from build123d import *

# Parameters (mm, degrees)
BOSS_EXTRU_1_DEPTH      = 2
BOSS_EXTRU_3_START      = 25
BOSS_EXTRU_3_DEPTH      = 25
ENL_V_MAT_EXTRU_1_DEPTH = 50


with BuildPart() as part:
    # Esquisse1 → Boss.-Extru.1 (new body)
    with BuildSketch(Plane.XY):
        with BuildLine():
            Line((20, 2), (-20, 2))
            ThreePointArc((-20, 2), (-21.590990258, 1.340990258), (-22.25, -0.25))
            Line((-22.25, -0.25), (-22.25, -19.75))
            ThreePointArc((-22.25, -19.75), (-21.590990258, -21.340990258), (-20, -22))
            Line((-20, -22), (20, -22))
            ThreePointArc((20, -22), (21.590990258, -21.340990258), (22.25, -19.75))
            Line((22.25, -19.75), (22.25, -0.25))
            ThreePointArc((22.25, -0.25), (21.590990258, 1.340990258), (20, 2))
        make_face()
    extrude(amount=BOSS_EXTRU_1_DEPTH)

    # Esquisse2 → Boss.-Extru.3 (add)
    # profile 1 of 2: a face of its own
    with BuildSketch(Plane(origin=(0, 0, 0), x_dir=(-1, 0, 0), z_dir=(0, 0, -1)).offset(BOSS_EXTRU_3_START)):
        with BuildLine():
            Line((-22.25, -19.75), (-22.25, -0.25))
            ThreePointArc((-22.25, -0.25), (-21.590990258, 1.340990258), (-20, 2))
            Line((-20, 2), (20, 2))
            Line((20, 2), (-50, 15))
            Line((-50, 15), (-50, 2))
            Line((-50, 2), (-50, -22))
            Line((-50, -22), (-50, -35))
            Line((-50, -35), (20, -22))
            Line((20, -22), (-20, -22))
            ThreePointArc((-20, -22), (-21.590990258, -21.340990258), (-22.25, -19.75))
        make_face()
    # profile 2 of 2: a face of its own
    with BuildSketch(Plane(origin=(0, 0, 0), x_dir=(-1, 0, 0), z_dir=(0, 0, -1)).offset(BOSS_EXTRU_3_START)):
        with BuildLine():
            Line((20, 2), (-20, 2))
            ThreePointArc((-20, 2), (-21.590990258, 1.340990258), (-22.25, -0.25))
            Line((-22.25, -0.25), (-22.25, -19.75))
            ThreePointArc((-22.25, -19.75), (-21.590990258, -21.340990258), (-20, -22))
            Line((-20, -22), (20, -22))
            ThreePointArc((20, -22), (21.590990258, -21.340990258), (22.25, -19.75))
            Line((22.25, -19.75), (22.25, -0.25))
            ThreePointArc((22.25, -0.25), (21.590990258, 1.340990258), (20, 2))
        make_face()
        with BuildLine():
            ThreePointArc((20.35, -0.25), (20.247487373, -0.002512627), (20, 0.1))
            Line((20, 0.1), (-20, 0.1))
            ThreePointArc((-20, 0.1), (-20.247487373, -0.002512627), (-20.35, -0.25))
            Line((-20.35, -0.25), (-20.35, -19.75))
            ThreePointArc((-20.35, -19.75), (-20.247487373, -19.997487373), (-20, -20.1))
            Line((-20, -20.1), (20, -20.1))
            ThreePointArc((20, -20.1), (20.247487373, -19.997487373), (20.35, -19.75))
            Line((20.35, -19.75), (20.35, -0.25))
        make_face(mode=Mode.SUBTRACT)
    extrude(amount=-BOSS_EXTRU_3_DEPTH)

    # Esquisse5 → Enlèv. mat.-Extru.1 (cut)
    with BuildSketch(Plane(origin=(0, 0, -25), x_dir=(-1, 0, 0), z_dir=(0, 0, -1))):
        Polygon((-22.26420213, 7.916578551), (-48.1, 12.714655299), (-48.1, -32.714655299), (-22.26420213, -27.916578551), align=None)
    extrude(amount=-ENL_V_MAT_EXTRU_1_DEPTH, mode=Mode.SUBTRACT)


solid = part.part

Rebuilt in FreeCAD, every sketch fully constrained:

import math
import FreeCAD as App
import Part
import Sketcher
Q = App.Units.Quantity


def add_polygon(sketch, points):
    """Adds a closed chain of lines whose ends are joined by coincident constraints."""
    first, n = sketch.GeometryCount, len(points)
    for a, b in zip(points, points[1:] + points[:1]):
        sketch.addGeometry(Part.LineSegment(App.Vector(*a, 0), App.Vector(*b, 0)), False)
    for i in range(n):
        sketch.addConstraint(Sketcher.Constraint("Coincident", first + i, 2, first + (i + 1) % n, 1))

doc = App.newDocument("Part")
params = doc.addObject("Spreadsheet::Sheet", "Params")
for row, (alias, value) in enumerate([
    ("sketch1_width", "40 mm"),
    ("sketch1_radius", "2.25 mm"),
    ("sketch1_height", "19.5 mm"),
    ("pad1_length", "2 mm"),
    ("sketch2_width", "40 mm"),
    ("sketch2_height", "50 mm"),
    ("sketch2_radius", "2.25 mm"),
    ("sketch2_radius2", "0.35 mm"),
    ("sketch2_height2", "19.5 mm"),
    ("pad2_length", "25 mm"),
    ("pocket1_length", "50 mm"),
], start=1):
    params.set(f"A{row}", alias)
    params.set(f"B{row}", "=" + value)
    params.setAlias(f"B{row}", alias)

body = doc.addObject("PartDesign::Body", "Body")

sketch1 = body.newObject("Sketcher::SketchObject", "Sketch")
sketch1.AttachmentSupport = (doc.getObject("XY_Plane"), [""])
sketch1.MapMode = "FlatFace"
sketch1.addGeometry(Part.LineSegment(App.Vector(20, 2, 0), App.Vector(-20, 2, 0)), False)
sketch1.addGeometry(Part.ArcOfCircle(Part.Circle(App.Vector(-20, -0.2, 0), App.Vector(0, 0, 1), 2.2), math.radians(90), math.radians(180)), False)
sketch1.addGeometry(Part.LineSegment(App.Vector(-22.2, -0.2, 0), App.Vector(-22.2, -19.8, 0)), False)
sketch1.addGeometry(Part.ArcOfCircle(Part.Circle(App.Vector(-20, -19.8, 0), App.Vector(0, 0, 1), 2.2), math.radians(180), math.radians(270)), False)
sketch1.addGeometry(Part.LineSegment(App.Vector(-20, -22, 0), App.Vector(20, -22, 0)), False)
sketch1.addGeometry(Part.ArcOfCircle(Part.Circle(App.Vector(20, -19.8, 0), App.Vector(0, 0, 1), 2.2), math.radians(-90), math.radians(0)), False)
sketch1.addGeometry(Part.LineSegment(App.Vector(22.2, -19.8, 0), App.Vector(22.2, -0.2, 0)), False)
sketch1.addGeometry(Part.ArcOfCircle(Part.Circle(App.Vector(20, -0.2, 0), App.Vector(0, 0, 1), 2.2), math.radians(0), math.radians(90)), False)
sketch1.addConstraint(Sketcher.Constraint("Tangent", 0, 2, 1, 1))
sketch1.addConstraint(Sketcher.Constraint("Tangent", 1, 2, 2, 1))
sketch1.addConstraint(Sketcher.Constraint("Tangent", 2, 2, 3, 1))
sketch1.addConstraint(Sketcher.Constraint("Tangent", 3, 2, 4, 1))
sketch1.addConstraint(Sketcher.Constraint("Tangent", 4, 2, 5, 1))
sketch1.addConstraint(Sketcher.Constraint("Tangent", 5, 2, 6, 1))
sketch1.addConstraint(Sketcher.Constraint("Tangent", 6, 2, 7, 1))
sketch1.addConstraint(Sketcher.Constraint("Tangent", 7, 2, 0, 1))
sketch1.addConstraint(Sketcher.Constraint("Horizontal", 0))
sketch1.addConstraint(Sketcher.Constraint("Vertical", 2))
sketch1.addConstraint(Sketcher.Constraint("Horizontal", 4))
sketch1.addConstraint(Sketcher.Constraint("Vertical", 6))
sketch1.addConstraint(Sketcher.Constraint("Equal", 1, 3))
sketch1.addConstraint(Sketcher.Constraint("Equal", 3, 5))
sketch1.addConstraint(Sketcher.Constraint("Equal", 5, 7))
sketch1.addConstraint(Sketcher.Constraint("DistanceX", 0, 2, 0, 1, Q("40 mm")))
sketch1.addConstraint(Sketcher.Constraint("Radius", 1, Q("2.25 mm")))
sketch1.addConstraint(Sketcher.Constraint("DistanceY", 2, 2, 2, 1, Q("19.5 mm")))
sketch1.addConstraint(Sketcher.Constraint("DistanceX", 1, 3, -1, 1, Q("20 mm")))
sketch1.addConstraint(Sketcher.Constraint("DistanceY", -1, 1, 0, 2, Q("2 mm")))
sketch1.setExpression("Constraints[15]", "Params.sketch1_width")
sketch1.setExpression("Constraints[16]", "Params.sketch1_radius")
sketch1.setExpression("Constraints[17]", "Params.sketch1_height")
pad1 = body.newObject("PartDesign::Pad", "Pad")
pad1.Profile = sketch1
pad1.setExpression("Length", "Params.pad1_length")

sketch2 = body.newObject("Sketcher::SketchObject", "Sketch001")
sketch2.AttachmentSupport = (doc.getObject("XY_Plane"), [""])
sketch2.MapMode = "FlatFace"
sketch2.AttachmentOffset = App.Placement(App.Vector(0, 0, -25), App.Rotation())
sketch2.addGeometry(Part.LineSegment(App.Vector(-20, 2, 0), App.Vector(50, 15, 0)), False)
sketch2.addGeometry(Part.LineSegment(App.Vector(50, 15, 0), App.Vector(50, -35, 0)), False)
sketch2.addGeometry(Part.LineSegment(App.Vector(50, -35, 0), App.Vector(-20, -22, 0)), False)
sketch2.addGeometry(Part.ArcOfCircle(Part.Circle(App.Vector(-20, -19.75, 0), App.Vector(0, 0, 1), 2.25), math.radians(180), math.radians(270)), False)
sketch2.addGeometry(Part.LineSegment(App.Vector(-22.25, -19.75, 0), App.Vector(-22.25, -0.25, 0)), False)
sketch2.addGeometry(Part.ArcOfCircle(Part.Circle(App.Vector(-20, -0.25, 0), App.Vector(0, 0, 1), 2.25), math.radians(90), math.radians(180)), False)
sketch2.addGeometry(Part.LineSegment(App.Vector(-20, -20.1, 0), App.Vector(20, -20.1, 0)), False)
sketch2.addGeometry(Part.ArcOfCircle(Part.Circle(App.Vector(20, -19.75, 0), App.Vector(0, 0, 1), 0.35), math.radians(-90), math.radians(0)), False)
sketch2.addGeometry(Part.LineSegment(App.Vector(20.35, -19.75, 0), App.Vector(20.35, -0.25, 0)), False)
sketch2.addGeometry(Part.ArcOfCircle(Part.Circle(App.Vector(20, -0.25, 0), App.Vector(0, 0, 1), 0.35), math.radians(0), math.radians(90)), False)
sketch2.addGeometry(Part.LineSegment(App.Vector(20, 0.1, 0), App.Vector(-20, 0.1, 0)), False)
sketch2.addGeometry(Part.ArcOfCircle(Part.Circle(App.Vector(-20, -0.25, 0), App.Vector(0, 0, 1), 0.35), math.radians(90), math.radians(180)), False)
sketch2.addGeometry(Part.LineSegment(App.Vector(-20.35, -0.25, 0), App.Vector(-20.35, -19.75, 0)), False)
sketch2.addGeometry(Part.ArcOfCircle(Part.Circle(App.Vector(-20, -19.75, 0), App.Vector(0, 0, 1), 0.35), math.radians(-180), math.radians(-90)), False)
sketch2.addConstraint(Sketcher.Constraint("Coincident", 0, 2, 1, 1))
sketch2.addConstraint(Sketcher.Constraint("Coincident", 1, 2, 2, 1))
sketch2.addConstraint(Sketcher.Constraint("Coincident", 2, 2, 3, 2))
sketch2.addConstraint(Sketcher.Constraint("Tangent", 3, 1, 4, 1))
sketch2.addConstraint(Sketcher.Constraint("Tangent", 4, 2, 5, 2))
sketch2.addConstraint(Sketcher.Constraint("Coincident", 5, 1, 0, 1))
sketch2.addConstraint(Sketcher.Constraint("Tangent", 6, 2, 7, 1))
sketch2.addConstraint(Sketcher.Constraint("Tangent", 7, 2, 8, 1))
sketch2.addConstraint(Sketcher.Constraint("Tangent", 8, 2, 9, 1))
sketch2.addConstraint(Sketcher.Constraint("Tangent", 9, 2, 10, 1))
sketch2.addConstraint(Sketcher.Constraint("Tangent", 10, 2, 11, 1))
sketch2.addConstraint(Sketcher.Constraint("Tangent", 11, 2, 12, 1))
sketch2.addConstraint(Sketcher.Constraint("Tangent", 12, 2, 13, 1))
sketch2.addConstraint(Sketcher.Constraint("Tangent", 13, 2, 6, 1))
sketch2.addConstraint(Sketcher.Constraint("Vertical", 1))
sketch2.addConstraint(Sketcher.Constraint("Vertical", 4))
sketch2.addConstraint(Sketcher.Constraint("Horizontal", 6))
sketch2.addConstraint(Sketcher.Constraint("Vertical", 8))
sketch2.addConstraint(Sketcher.Constraint("Horizontal", 10))
sketch2.addConstraint(Sketcher.Constraint("Vertical", 12))
sketch2.addConstraint(Sketcher.Constraint("Coincident", 11, 3, 5, 3))
sketch2.addConstraint(Sketcher.Constraint("Coincident", 13, 3, 3, 3))
sketch2.addConstraint(Sketcher.Constraint("Equal", 3, 5))
sketch2.addConstraint(Sketcher.Constraint("Equal", 7, 9))
sketch2.addConstraint(Sketcher.Constraint("Equal", 9, 11))
sketch2.addConstraint(Sketcher.Constraint("Vertical", 13, 3, 2, 2))
sketch2.addConstraint(Sketcher.Constraint("Vertical", 2, 2, 5, 1))
sketch2.addConstraint(Sketcher.Constraint("Equal", 0, 2))
sketch2.addConstraint(Sketcher.Constraint("DistanceX", 6, 1, 6, 2, Q("40 mm")))
sketch2.addConstraint(Sketcher.Constraint("DistanceY", 1, 2, 1, 1, Q("50 mm")))
sketch2.addConstraint(Sketcher.Constraint("Radius", 3, Q("2.25 mm")))
sketch2.addConstraint(Sketcher.Constraint("Radius", 7, Q("0.35 mm")))
sketch2.addConstraint(Sketcher.Constraint("DistanceY", 4, 1, 4, 2, Q("19.5 mm")))
sketch2.addConstraint(Sketcher.Constraint("DistanceX", 3, 3, -1, 1, Q("20 mm")))
sketch2.addConstraint(Sketcher.Constraint("DistanceX", -1, 1, 0, 2, Q("50 mm")))
sketch2.addConstraint(Sketcher.Constraint("DistanceY", -1, 1, 0, 2, Q("15 mm")))
sketch2.setExpression("Constraints[28]", "Params.sketch2_width")
sketch2.setExpression("Constraints[29]", "Params.sketch2_height")
sketch2.setExpression("Constraints[30]", "Params.sketch2_radius")
sketch2.setExpression("Constraints[31]", "Params.sketch2_radius2")
sketch2.setExpression("Constraints[32]", "Params.sketch2_height2")
pad2 = body.newObject("PartDesign::Pad", "Pad001")
pad2.Profile = sketch2
pad2.setExpression("Length", "Params.pad2_length")

sketch3 = body.newObject("Sketcher::SketchObject", "Sketch002")
sketch3.AttachmentSupport = (doc.getObject("XY_Plane"), [""])
sketch3.MapMode = "FlatFace"
sketch3.AttachmentOffset = App.Placement(App.Vector(0, 0, -25), App.Rotation())
add_polygon(sketch3, [(22, 8), (48, 13), (48, -33), (22, -28)])
sketch3.addConstraint(Sketcher.Constraint("Vertical", 1))
sketch3.addConstraint(Sketcher.Constraint("Vertical", 3))
sketch3.addConstraint(Sketcher.Constraint("Equal", 0, 2))
sketch3.addConstraint(Sketcher.Constraint("DistanceX", -1, 1, 0, 2, Q("48.1 mm")))
sketch3.addConstraint(Sketcher.Constraint("DistanceY", 1, 2, 1, 1, Q("45.429311 mm")))
sketch3.addConstraint(Sketcher.Constraint("DistanceY", 3, 1, 3, 2, Q("35.833157 mm")))
sketch3.addConstraint(Sketcher.Constraint("DistanceY", 2, 2, -1, 1, Q("27.916579 mm")))
sketch3.addConstraint(Sketcher.Constraint("Distance", 0, Q("26.277557 mm")))
pocket1 = body.newObject("PartDesign::Pocket", "Pocket")
pocket1.Profile = sketch3
pocket1.setExpression("Length", "Params.pocket1_length")
pocket1.Reversed = True

doc.recompute()
